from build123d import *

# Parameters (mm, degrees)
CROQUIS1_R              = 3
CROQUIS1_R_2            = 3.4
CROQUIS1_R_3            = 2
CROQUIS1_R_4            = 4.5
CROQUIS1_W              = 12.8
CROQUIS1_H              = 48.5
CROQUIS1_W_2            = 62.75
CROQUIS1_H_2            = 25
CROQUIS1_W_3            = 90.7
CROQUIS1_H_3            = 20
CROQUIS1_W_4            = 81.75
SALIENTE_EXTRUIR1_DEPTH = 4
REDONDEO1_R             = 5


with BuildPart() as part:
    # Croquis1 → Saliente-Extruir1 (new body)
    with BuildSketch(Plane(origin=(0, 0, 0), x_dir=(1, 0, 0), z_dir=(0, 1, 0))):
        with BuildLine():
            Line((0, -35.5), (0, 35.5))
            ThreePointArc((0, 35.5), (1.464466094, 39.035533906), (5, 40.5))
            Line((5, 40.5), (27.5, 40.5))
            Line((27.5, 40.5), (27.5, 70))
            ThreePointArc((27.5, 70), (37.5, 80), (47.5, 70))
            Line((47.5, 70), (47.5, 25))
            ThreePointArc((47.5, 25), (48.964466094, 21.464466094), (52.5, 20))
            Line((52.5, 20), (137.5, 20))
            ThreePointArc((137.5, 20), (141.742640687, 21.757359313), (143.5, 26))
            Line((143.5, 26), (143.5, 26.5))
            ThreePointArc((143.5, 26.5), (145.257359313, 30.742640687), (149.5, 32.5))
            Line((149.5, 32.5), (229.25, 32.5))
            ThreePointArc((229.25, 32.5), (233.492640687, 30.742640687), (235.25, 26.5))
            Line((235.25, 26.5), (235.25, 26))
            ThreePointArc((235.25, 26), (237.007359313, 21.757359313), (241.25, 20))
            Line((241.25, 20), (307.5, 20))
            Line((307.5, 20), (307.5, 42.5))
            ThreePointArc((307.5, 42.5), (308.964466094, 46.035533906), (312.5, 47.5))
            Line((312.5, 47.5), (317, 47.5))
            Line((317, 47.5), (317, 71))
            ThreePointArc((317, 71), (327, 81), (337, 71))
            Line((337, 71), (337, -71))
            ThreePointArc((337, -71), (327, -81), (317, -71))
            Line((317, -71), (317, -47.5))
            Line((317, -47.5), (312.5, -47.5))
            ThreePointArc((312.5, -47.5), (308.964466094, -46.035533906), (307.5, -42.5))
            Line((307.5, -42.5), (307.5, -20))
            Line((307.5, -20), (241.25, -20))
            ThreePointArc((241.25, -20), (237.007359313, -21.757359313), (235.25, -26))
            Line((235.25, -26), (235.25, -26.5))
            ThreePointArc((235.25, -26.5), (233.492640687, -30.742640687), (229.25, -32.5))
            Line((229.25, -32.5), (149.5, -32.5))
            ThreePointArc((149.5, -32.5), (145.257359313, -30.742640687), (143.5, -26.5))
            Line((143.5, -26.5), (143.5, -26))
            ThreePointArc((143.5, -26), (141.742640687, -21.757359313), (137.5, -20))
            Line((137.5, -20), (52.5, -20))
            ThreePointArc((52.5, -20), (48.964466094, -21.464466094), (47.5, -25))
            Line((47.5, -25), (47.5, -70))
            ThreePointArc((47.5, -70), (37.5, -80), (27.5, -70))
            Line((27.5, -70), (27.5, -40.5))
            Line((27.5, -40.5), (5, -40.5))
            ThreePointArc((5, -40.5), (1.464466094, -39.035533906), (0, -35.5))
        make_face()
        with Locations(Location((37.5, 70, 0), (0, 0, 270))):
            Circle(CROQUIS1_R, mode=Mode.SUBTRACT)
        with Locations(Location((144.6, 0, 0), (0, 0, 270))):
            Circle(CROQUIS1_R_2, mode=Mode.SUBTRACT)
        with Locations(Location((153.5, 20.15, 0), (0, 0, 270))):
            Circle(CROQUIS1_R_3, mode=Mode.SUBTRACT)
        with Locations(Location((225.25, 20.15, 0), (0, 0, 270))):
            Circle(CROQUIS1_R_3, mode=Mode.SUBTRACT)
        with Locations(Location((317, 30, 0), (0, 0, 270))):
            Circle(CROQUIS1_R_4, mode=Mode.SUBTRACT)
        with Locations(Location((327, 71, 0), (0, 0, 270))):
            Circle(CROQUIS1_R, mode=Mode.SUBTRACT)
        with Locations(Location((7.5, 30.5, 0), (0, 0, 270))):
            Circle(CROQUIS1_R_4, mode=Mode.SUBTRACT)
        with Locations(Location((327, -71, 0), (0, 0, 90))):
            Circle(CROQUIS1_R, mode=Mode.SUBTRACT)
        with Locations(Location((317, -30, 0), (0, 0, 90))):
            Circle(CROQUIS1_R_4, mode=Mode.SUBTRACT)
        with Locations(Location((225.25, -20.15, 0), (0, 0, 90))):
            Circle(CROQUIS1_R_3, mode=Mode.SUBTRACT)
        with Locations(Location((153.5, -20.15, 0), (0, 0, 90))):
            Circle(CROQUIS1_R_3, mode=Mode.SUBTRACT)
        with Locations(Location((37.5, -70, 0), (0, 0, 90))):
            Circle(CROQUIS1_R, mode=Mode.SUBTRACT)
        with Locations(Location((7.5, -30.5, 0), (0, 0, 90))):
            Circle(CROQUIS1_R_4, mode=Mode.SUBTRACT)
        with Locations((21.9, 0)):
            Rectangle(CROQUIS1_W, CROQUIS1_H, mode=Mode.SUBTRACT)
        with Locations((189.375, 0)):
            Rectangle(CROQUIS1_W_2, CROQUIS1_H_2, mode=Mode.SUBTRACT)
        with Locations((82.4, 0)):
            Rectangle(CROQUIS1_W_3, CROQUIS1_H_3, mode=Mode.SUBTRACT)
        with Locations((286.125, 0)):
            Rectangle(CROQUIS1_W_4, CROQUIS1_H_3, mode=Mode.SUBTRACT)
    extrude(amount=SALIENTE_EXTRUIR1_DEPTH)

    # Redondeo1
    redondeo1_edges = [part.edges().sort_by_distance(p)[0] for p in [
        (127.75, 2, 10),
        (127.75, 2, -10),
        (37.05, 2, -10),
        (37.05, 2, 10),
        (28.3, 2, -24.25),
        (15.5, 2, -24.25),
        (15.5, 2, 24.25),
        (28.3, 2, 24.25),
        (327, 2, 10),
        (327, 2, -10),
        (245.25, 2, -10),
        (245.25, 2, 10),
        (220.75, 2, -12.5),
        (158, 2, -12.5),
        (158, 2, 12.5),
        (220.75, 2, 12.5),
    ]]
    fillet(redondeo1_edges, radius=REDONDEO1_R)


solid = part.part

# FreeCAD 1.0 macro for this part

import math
import FreeCAD as App
import Part
import Sketcher
from FreeCAD import Vector


def edges_at(feature, points):
    """Names of the edges that pass closest to the given points."""
    edges = feature.Shape.Edges
    near = lambda p: min(range(len(edges)), key=lambda i: edges[i].distToShape(Part.Vertex(*p))[0])
    return sorted({f"Edge{near(p) + 1}" for p in points})


def add_polygon(sketch, points):
    """Adds a closed chain of lines whose ends are joined by coincident constraints."""
    first, n = sketch.GeometryCount, len(points)
    for a, b in zip(points, points[1:] + points[:1]):
        sketch.addGeometry(Part.LineSegment(App.Vector(*a, 0), App.Vector(*b, 0)), False)
    for i in range(n):
        sketch.addConstraint(Sketcher.Constraint("Coincident", first + i, 2, first + (i + 1) % n, 1))

doc = App.newDocument("Part")
body = doc.addObject("PartDesign::Body", "Body")

# Sketch on XZ plane
sketch1 = doc.addObject("Sketcher::SketchObject", "Sketch")
body.addObject(sketch1)
sketch1.AttachmentSupport = (doc.XZ_Plane, [""])
sketch1.MapMode = "FlatFace"
sketch1.addGeometry(Part.LineSegment(Vector(0, -35.5, 0), Vector(0, 35.5, 0)), False)  # 0
sketch1.addGeometry(Part.ArcOfCircle(Part.Circle(Vector(5, 35.5, 0), Vector(0, 0, 1), 5), math.radians(90), math.radians(180)), False)  # 1
sketch1.addGeometry(Part.LineSegment(Vector(5, 40.5, 0), Vector(27.5, 40.5, 0)), False)  # 2
sketch1.addGeometry(Part.LineSegment(Vector(27.5, 40.5, 0), Vector(27.5, 70, 0)), False)  # 3
sketch1.addGeometry(Part.ArcOfCircle(Part.Circle(Vector(37.5, 70, 0), Vector(0, 0, 1), 10), math.radians(0), math.radians(180)), False)  # 4
sketch1.addGeometry(Part.LineSegment(Vector(47.5, 70, 0), Vector(47.5, 25, 0)), False)  # 5
sketch1.addGeometry(Part.ArcOfCircle(Part.Circle(Vector(52.5, 25, 0), Vector(0, 0, 1), 5), math.radians(180), math.radians(270)), False)  # 6
sketch1.addGeometry(Part.LineSegment(Vector(52.5, 20, 0), Vector(137.5, 20, 0)), False)  # 7
sketch1.addGeometry(Part.ArcOfCircle(Part.Circle(Vector(137.5, 26, 0), Vector(0, 0, 1), 6), math.radians(-90), math.radians(0)), False)  # 8
sketch1.addGeometry(Part.LineSegment(Vector(143.5, 26, 0), Vector(143.5, 26.5, 0)), False)  # 9
sketch1.addGeometry(Part.ArcOfCircle(Part.Circle(Vector(149.5, 26.5, 0), Vector(0, 0, 1), 6), math.radians(90), math.radians(180)), False)  # 10
sketch1.addGeometry(Part.LineSegment(Vector(149.5, 32.5, 0), Vector(229.2, 32.5, 0)), False)  # 11
sketch1.addGeometry(Part.ArcOfCircle(Part.Circle(Vector(229.2, 26.5, 0), Vector(0, 0, 1), 6), math.radians(0), math.radians(90)), False)  # 12
sketch1.addGeometry(Part.LineSegment(Vector(235.2, 26.5, 0), Vector(235.2, 26, 0)), False)  # 13
sketch1.addGeometry(Part.ArcOfCircle(Part.Circle(Vector(241.2, 26, 0), Vector(0, 0, 1), 6), math.radians(180), math.radians(270)), False)  # 14
sketch1.addGeometry(Part.LineSegment(Vector(241.2, 20, 0), Vector(307.5, 20, 0)), False)  # 15
sketch1.addGeometry(Part.LineSegment(Vector(307.5, 20, 0), Vector(307.5, 42.5, 0)), False)  # 16
sketch1.addGeometry(Part.ArcOfCircle(Part.Circle(Vector(312.5, 42.5, 0), Vector(0, 0, 1), 5), math.radians(90), math.radians(180)), False)  # 17
sketch1.addGeometry(Part.LineSegment(Vector(312.5, 47.5, 0), Vector(317, 47.5, 0)), False)  # 18
sketch1.addGeometry(Part.LineSegment(Vector(317, 47.5, 0), Vector(317, 71, 0)), False)  # 19
sketch1.addGeometry(Part.ArcOfCircle(Part.Circle(Vector(327, 71, 0), Vector(0, 0, 1), 10), math.radians(0), math.radians(180)), False)  # 20
sketch1.addGeometry(Part.LineSegment(Vector(337, 71, 0), Vector(337, -71, 0)), False)  # 21
sketch1.addGeometry(Part.ArcOfCircle(Part.Circle(Vector(327, -71, 0), Vector(0, 0, 1), 10), math.radians(180), math.radians(360)), False)  # 22
sketch1.addGeometry(Part.LineSegment(Vector(317, -71, 0), Vector(317, -47.5, 0)), False)  # 23
sketch1.addGeometry(Part.LineSegment(Vector(317, -47.5, 0), Vector(312.5, -47.5, 0)), False)  # 24
sketch1.addGeometry(Part.ArcOfCircle(Part.Circle(Vector(312.5, -42.5, 0), Vector(0, 0, 1), 5), math.radians(180), math.radians(270)), False)  # 25
sketch1.addGeometry(Part.LineSegment(Vector(307.5, -42.5, 0), Vector(307.5, -20, 0)), False)  # 26
sketch1.addGeometry(Part.LineSegment(Vector(307.5, -20, 0), Vector(241.2, -20, 0)), False)  # 27
sketch1.addGeometry(Part.ArcOfCircle(Part.Circle(Vector(241.2, -26, 0), Vector(0, 0, 1), 6), math.radians(90), math.radians(180)), False)  # 28
sketch1.addGeometry(Part.LineSegment(Vector(235.2, -26, 0), Vector(235.2, -26.5, 0)), False)  # 29
sketch1.addGeometry(Part.ArcOfCircle(Part.Circle(Vector(229.2, -26.5, 0), Vector(0, 0, 1), 6), math.radians(-90), math.radians(0)), False)  # 30
sketch1.addGeometry(Part.LineSegment(Vector(229.2, -32.5, 0), Vector(149.5, -32.5, 0)), False)  # 31
sketch1.addGeometry(Part.ArcOfCircle(Part.Circle(Vector(149.5, -26.5, 0), Vector(0, 0, 1), 6), math.radians(180), math.radians(270)), False)  # 32
sketch1.addGeometry(Part.LineSegment(Vector(143.5, -26.5, 0), Vector(143.5, -26, 0)), False)  # 33
sketch1.addGeometry(Part.ArcOfCircle(Part.Circle(Vector(137.5, -26, 0), Vector(0, 0, 1), 6), math.radians(0), math.radians(90)), False)  # 34
sketch1.addGeometry(Part.LineSegment(Vector(137.5, -20, 0), Vector(52.5, -20, 0)), False)  # 35
sketch1.addGeometry(Part.ArcOfCircle(Part.Circle(Vector(52.5, -25, 0), Vector(0, 0, 1), 5), math.radians(90), math.radians(180)), False)  # 36
sketch1.addGeometry(Part.LineSegment(Vector(47.5, -25, 0), Vector(47.5, -70, 0)), False)  # 37
sketch1.addGeometry(Part.ArcOfCircle(Part.Circle(Vector(37.5, -70, 0), Vector(0, 0, 1), 10), math.radians(180), math.radians(360)), False)  # 38
sketch1.addGeometry(Part.LineSegment(Vector(27.5, -70, 0), Vector(27.5, -40.5, 0)), False)  # 39
sketch1.addGeometry(Part.LineSegment(Vector(27.5, -40.5, 0), Vector(5, -40.5, 0)), False)  # 40
sketch1.addGeometry(Part.ArcOfCircle(Part.Circle(Vector(5, -35.5, 0), Vector(0, 0, 1), 5), math.radians(180), math.radians(270)), False)  # 41
sketch1.addGeometry(Part.Circle(Vector(327, 71, 0), Vector(0, 0, 1), 3), False)  # 42
sketch1.addGeometry(Part.Circle(Vector(317, 30, 0), Vector(0, 0, 1), 4.5), False)  # 43
sketch1.addGeometry(Part.Circle(Vector(225.2, 20.1, 0), Vector(0, 0, 1), 2), False)  # 44
sketch1.addGeometry(Part.Circle(Vector(37.5, 70, 0), Vector(0, 0, 1), 3), False)  # 45
sketch1.addGeometry(Part.Circle(Vector(153.5, 20.1, 0), Vector(0, 0, 1), 2), False)  # 46
sketch1.addGeometry(Part.Circle(Vector(7.5, 30.5, 0), Vector(0, 0, 1), 4.5), False)  # 47
add_polygon(sketch1, [(245.2, 10), (245.2, -10), (327, -10), (327, 10)])  # lines 48-51
sketch1.addGeometry(Part.Circle(Vector(317, -30, 0), Vector(0, 0, 1), 4.5), False)  # 52
add_polygon(sketch1, [(158, 12.5), (158, -12.5), (220.8, -12.5), (220.8, 12.5)])  # lines 53-56
sketch1.addGeometry(Part.Circle(Vector(225.2, -20.1, 0), Vector(0, 0, 1), 2), False)  # 57
sketch1.addGeometry(Part.Circle(Vector(327, -71, 0), Vector(0, 0, 1), 3), False)  # 58
sketch1.addGeometry(Part.Circle(Vector(144.6, 0, 0), Vector(0, 0, 1), 3.4), False)  # 59
sketch1.addGeometry(Part.Circle(Vector(153.5, -20.1, 0), Vector(0, 0, 1), 2), False)  # 60
add_polygon(sketch1, [(37, 10), (37, -10), (127.8, -10), (127.8, 10)])  # lines 61-64
add_polygon(sketch1, [(15.5, 24.2), (15.5, -24.2), (28.3, -24.2), (28.3, 24.2)])  # lines 65-68
sketch1.addGeometry(Part.Circle(Vector(7.5, -30.5, 0), Vector(0, 0, 1), 4.5), False)  # 69
sketch1.addGeometry(Part.Circle(Vector(37.5, -70, 0), Vector(0, 0, 1), 3), False)  # 70
sketch1.addConstraint(Sketcher.Constraint("Tangent", 0, 2, 1, 2))
sketch1.addConstraint(Sketcher.Constraint("Tangent", 1, 1, 2, 1))
sketch1.addConstraint(Sketcher.Constraint("Coincident", 2, 2, 3, 1))
sketch1.addConstraint(Sketcher.Constraint("Tangent", 3, 2, 4, 2))
sketch1.addConstraint(Sketcher.Constraint("Tangent", 4, 1, 5, 1))
sketch1.addConstraint(Sketcher.Constraint("Tangent", 5, 2, 6, 1))
sketch1.addConstraint(Sketcher.Constraint("Tangent", 6, 2, 7, 1))
sketch1.addConstraint(Sketcher.Constraint("Tangent", 7, 2, 8, 1))
sketch1.addConstraint(Sketcher.Constraint("Tangent", 8, 2, 9, 1))
sketch1.addConstraint(Sketcher.Constraint("Tangent", 9, 2, 10, 2))
sketch1.addConstraint(Sketcher.Constraint("Tangent", 10, 1, 11, 1))
sketch1.addConstraint(Sketcher.Constraint("Tangent", 11, 2, 12, 2))
sketch1.addConstraint(Sketcher.Constraint("Tangent", 12, 1, 13, 1))
sketch1.addConstraint(Sketcher.Constraint("Tangent", 13, 2, 14, 1))
sketch1.addConstraint(Sketcher.Constraint("Tangent", 14, 2, 15, 1))
sketch1.addConstraint(Sketcher.Constraint("Coincident", 15, 2, 16, 1))
sketch1.addConstraint(Sketcher.Constraint("Tangent", 16, 2, 17, 2))
sketch1.addConstraint(Sketcher.Constraint("Tangent", 17, 1, 18, 1))
sketch1.addConstraint(Sketcher.Constraint("Coincident", 18, 2, 19, 1))
sketch1.addConstraint(Sketcher.Constraint("Tangent", 19, 2, 20, 2))
sketch1.addConstraint(Sketcher.Constraint("Tangent", 20, 1, 21, 1))
sketch1.addConstraint(Sketcher.Constraint("Tangent", 21, 2, 22, 2))
sketch1.addConstraint(Sketcher.Constraint("Tangent", 22, 1, 23, 1))
sketch1.addConstraint(Sketcher.Constraint("Coincident", 23, 2, 24, 1))
sketch1.addConstraint(Sketcher.Constraint("Tangent", 24, 2, 25, 2))
sketch1.addConstraint(Sketcher.Constraint("Tangent", 25, 1, 26, 1))
sketch1.addConstraint(Sketcher.Constraint("Coincident", 26, 2, 27, 1))
sketch1.addConstraint(Sketcher.Constraint("Tangent", 27, 2, 28, 1))
sketch1.addConstraint(Sketcher.Constraint("Tangent", 28, 2, 29, 1))
sketch1.addConstraint(Sketcher.Constraint("Tangent", 29, 2, 30, 2))
sketch1.addConstraint(Sketcher.Constraint("Tangent", 30, 1, 31, 1))
sketch1.addConstraint(Sketcher.Constraint("Tangent", 31, 2, 32, 2))
sketch1.addConstraint(Sketcher.Constraint("Tangent", 32, 1, 33, 1))
sketch1.addConstraint(Sketcher.Constraint("Tangent", 33, 2, 34, 1))
sketch1.addConstraint(Sketcher.Constraint("Tangent", 34, 2, 35, 1))
sketch1.addConstraint(Sketcher.Constraint("Tangent", 35, 2, 36, 1))
sketch1.addConstraint(Sketcher.Constraint("Tangent", 36, 2, 37, 1))
sketch1.addConstraint(Sketcher.Constraint("Tangent", 37, 2, 38, 2))
sketch1.addConstraint(Sketcher.Constraint("Tangent", 38, 1, 39, 1))
sketch1.addConstraint(Sketcher.Constraint("Coincident", 39, 2, 40, 1))
sketch1.addConstraint(Sketcher.Constraint("Tangent", 40, 2, 41, 2))
sketch1.addConstraint(Sketcher.Constraint("Tangent", 41, 1, 0, 1))
sketch1.addConstraint(Sketcher.Constraint("Vertical", 0))
sketch1.addConstraint(Sketcher.Constraint("Horizontal", 2))
sketch1.addConstraint(Sketcher.Constraint("Vertical", 3))
sketch1.addConstraint(Sketcher.Constraint("Vertical", 5))
sketch1.addConstraint(Sketcher.Constraint("Horizontal", 7))
sketch1.addConstraint(Sketcher.Constraint("Vertical", 9))
sketch1.addConstraint(Sketcher.Constraint("Horizontal", 11))
sketch1.addConstraint(Sketcher.Constraint("Vertical", 13))
sketch1.addConstraint(Sketcher.Constraint("Horizontal", 15))
sketch1.addConstraint(Sketcher.Constraint("Vertical", 16))
sketch1.addConstraint(Sketcher.Constraint("Horizontal", 18))
sketch1.addConstraint(Sketcher.Constraint("Vertical", 19))
sketch1.addConstraint(Sketcher.Constraint("Vertical", 21))
sketch1.addConstraint(Sketcher.Constraint("Vertical", 23))
sketch1.addConstraint(Sketcher.Constraint("Horizontal", 24))
sketch1.addConstraint(Sketcher.Constraint("Vertical", 26))
sketch1.addConstraint(Sketcher.Constraint("Horizontal", 27))
sketch1.addConstraint(Sketcher.Constraint("Vertical", 29))
sketch1.addConstraint(Sketcher.Constraint("Horizontal", 31))
sketch1.addConstraint(Sketcher.Constraint("Vertical", 33))
sketch1.addConstraint(Sketcher.Constraint("Horizontal", 35))
sketch1.addConstraint(Sketcher.Constraint("Vertical", 37))
sketch1.addConstraint(Sketcher.Constraint("Vertical", 39))
sketch1.addConstraint(Sketcher.Constraint("Horizontal", 40))
sketch1.addConstraint(Sketcher.Constraint("Vertical", 48))
sketch1.addConstraint(Sketcher.Constraint("Horizontal", 49))
sketch1.addConstraint(Sketcher.Constraint("Vertical", 50))
sketch1.addConstraint(Sketcher.Constraint("Horizontal", 51))
sketch1.addConstraint(Sketcher.Constraint("Vertical", 53))
sketch1.addConstraint(Sketcher.Constraint("Horizontal", 54))
sketch1.addConstraint(Sketcher.Constraint("Vertical", 55))
sketch1.addConstraint(Sketcher.Constraint("Horizontal", 56))
sketch1.addConstraint(Sketcher.Constraint("Vertical", 61))
sketch1.addConstraint(Sketcher.Constraint("Horizontal", 62))
sketch1.addConstraint(Sketcher.Constraint("Vertical", 63))
sketch1.addConstraint(Sketcher.Constraint("Horizontal", 64))
sketch1.addConstraint(Sketcher.Constraint("Vertical", 65))
sketch1.addConstraint(Sketcher.Constraint("Horizontal", 66))
sketch1.addConstraint(Sketcher.Constraint("Vertical", 67))
sketch1.addConstraint(Sketcher.Constraint("Horizontal", 68))
sketch1.addConstraint(Sketcher.Constraint("Coincident", 42, 3, 20, 3))
sketch1.addConstraint(Sketcher.Constraint("Coincident", 45, 3, 4, 3))
sketch1.addConstraint(Sketcher.Constraint("Coincident", 58, 3, 22, 3))
sketch1.addConstraint(Sketcher.Constraint("Coincident", 70, 3, 38, 3))
sketch1.addConstraint(Sketcher.Constraint("Equal", 1, 6))
sketch1.addConstraint(Sketcher.Constraint("Equal", 8, 10))
sketch1.addConstraint(Sketcher.Constraint("Equal", 10, 12))
sketch1.addConstraint(Sketcher.Constraint("Equal", 12, 14))
sketch1.addConstraint(Sketcher.Constraint("Equal", 6, 17))
sketch1.addConstraint(Sketcher.Constraint("Equal", 4, 20))
sketch1.addConstraint(Sketcher.Constraint("Equal", 20, 22))
sketch1.addConstraint(Sketcher.Constraint("Equal", 17, 25))
sketch1.addConstraint(Sketcher.Constraint("Equal", 14, 28))
sketch1.addConstraint(Sketcher.Constraint("Equal", 28, 30))
sketch1.addConstraint(Sketcher.Constraint("Equal", 30, 32))
sketch1.addConstraint(Sketcher.Constraint("Equal", 32, 34))
sketch1.addConstraint(Sketcher.Constraint("Equal", 25, 36))
sketch1.addConstraint(Sketcher.Constraint("Equal", 22, 38))
sketch1.addConstraint(Sketcher.Constraint("Equal", 36, 41))
sketch1.addConstraint(Sketcher.Constraint("Equal", 42, 45))
sketch1.addConstraint(Sketcher.Constraint("Equal", 44, 46))
sketch1.addConstraint(Sketcher.Constraint("Equal", 43, 47))
sketch1.addConstraint(Sketcher.Constraint("Equal", 47, 52))
sketch1.addConstraint(Sketcher.Constraint("Equal", 46, 57))
sketch1.addConstraint(Sketcher.Constraint("Equal", 45, 58))
sketch1.addConstraint(Sketcher.Constraint("Equal", 57, 60))
sketch1.addConstraint(Sketcher.Constraint("Equal", 52, 69))
sketch1.addConstraint(Sketcher.Constraint("Equal", 58, 70))
sketch1.addConstraint(Sketcher.Constraint("Symmetric", 0, 2, 41, 1, -1, 1))
sketch1.addConstraint(Sketcher.Constraint("Symmetric", 17, 3, 25, 3, -1))
sketch1.addConstraint(Sketcher.Constraint("Symmetric", 14, 3, 28, 3, -1))
sketch1.addConstraint(Sketcher.Constraint("Symmetric", 10, 3, 32, 3, -1))
sketch1.addConstraint(Sketcher.Constraint("Symmetric", 6, 3, 36, 3, -1))
sketch1.addConstraint(Sketcher.Constraint("Symmetric", 43, 3, 52, 3, -1))
sketch1.addConstraint(Sketcher.Constraint("Symmetric", 44, 3, 57, 3, -1))
sketch1.addConstraint(Sketcher.Constraint("Symmetric", 46, 3, 60, 3, -1))
sketch1.addConstraint(Sketcher.Constraint("Symmetric", 47, 3, 69, 3, -1))
sketch1.addConstraint(Sketcher.Constraint("PointOnObject", 59, 3, -1))
sketch1.addConstraint(Sketcher.Constraint("Horizontal", 8, 3, 14, 3))
sketch1.addConstraint(Sketcher.Constraint("Horizontal", 44, 3, 46, 3))
sketch1.addConstraint(Sketcher.Constraint("Horizontal", 49, 2, 61, 2))
sketch1.addConstraint(Sketcher.Constraint("Horizontal", 51, 2, 63, 2))
sketch1.addConstraint(Sketcher.Constraint("Vertical", 52, 3, 18, 2))
sketch1.addConstraint(Sketcher.Constraint("Vertical", 58, 3, 49, 2))
sketch1.addConstraint(Sketcher.Constraint("Equal", 40, 16))
sketch1.addConstraint(Sketcher.Constraint("Equal", 19, 23))
sketch1.addConstraint(Sketcher.Constraint("Equal", 5, 37))
sketch1.addConstraint(Sketcher.Constraint("Diameter", 42, 6.0))
sketch1.addConstraint(Sketcher.Constraint("Diameter", 43, 9.0))
sketch1.addConstraint(Sketcher.Constraint("Diameter", 44, 4.0))
sketch1.addConstraint(Sketcher.Constraint("Radius", 1, 5.0))
sketch1.addConstraint(Sketcher.Constraint("Radius", 4, 10.0))
sketch1.addConstraint(Sketcher.Constraint("Radius", 8, 6.0))
sketch1.addConstraint(Sketcher.Constraint("Diameter", 59, 6.8))
sketch1.addConstraint(Sketcher.Constraint("DistanceX", 7, 1, 7, 2, 85.0))
sketch1.addConstraint(Sketcher.Constraint("DistanceY", 0, 1, 0, 2, 71.0))
sketch1.addConstraint(Sketcher.Constraint("DistanceY", 5, 2, 5, 1, 45.0))
sketch1.addConstraint(Sketcher.Constraint("DistanceY", 21, 2, 21, 1, 142.0))
sketch1.addConstraint(Sketcher.Constraint("DistanceY", 48, 2, 48, 1, 20.0))
sketch1.addConstraint(Sketcher.Constraint("DistanceY", 53, 2, 53, 1, 25.0))
sketch1.addConstraint(Sketcher.Constraint("DistanceX", 2, 1, 2, 2, 22.5))
sketch1.addConstraint(Sketcher.Constraint("DistanceX", 18, 1, 18, 2, 4.5))
sketch1.addConstraint(Sketcher.Constraint("DistanceX", 62, 1, 62, 2, 90.7))
sketch1.addConstraint(Sketcher.Constraint("DistanceX", 66, 1, 66, 2, 12.8))
sketch1.addConstraint(Sketcher.Constraint("DistanceY", 3, 1, 3, 2, 29.5))
sketch1.addConstraint(Sketcher.Constraint("DistanceY", 9, 1, 9, 2, 0.5))
sketch1.addConstraint(Sketcher.Constraint("DistanceY", 65, 2, 65, 1, 48.5))
sketch1.addConstraint(Sketcher.Constraint("DistanceX", -1, 1, 20, 3, 327.0))
sketch1.addConstraint(Sketcher.Constraint("DistanceY", -1, 1, 43, 3, 30.0))
sketch1.addConstraint(Sketcher.Constraint("DistanceY", 48, 2, -1, 1, 10.0))
sketch1.addConstraint(Sketcher.Constraint("DistanceX", -1, 1, 53, 2, 158.0))
sketch1.addConstraint(Sketcher.Constraint("DistanceX", 11, 1, 11, 2, 79.75))
sketch1.addConstraint(Sketcher.Constraint("DistanceX", 49, 1, 49, 2, 81.75))
sketch1.addConstraint(Sketcher.Constraint("DistanceX", 54, 1, 54, 2, 62.75))
sketch1.addConstraint(Sketcher.Constraint("DistanceX", -1, 1, 46, 3, 153.5))
sketch1.addConstraint(Sketcher.Constraint("DistanceX", -1, 1, 47, 3, 7.5))
sketch1.addConstraint(Sketcher.Constraint("DistanceY", -1, 1, 47, 3, 30.5))
sketch1.addConstraint(Sketcher.Constraint("DistanceX", -1, 1, 59, 3, 144.6))
sketch1.addConstraint(Sketcher.Constraint("DistanceY", 53, 2, -1, 1, 12.5))
sketch1.addConstraint(Sketcher.Constraint("DistanceX", -1, 1, 65, 2, 15.5))
sketch1.addConstraint(Sketcher.Constraint("DistanceX", -1, 1, 44, 3, 225.25))
sketch1.addConstraint(Sketcher.Constraint("DistanceY", -1, 1, 44, 3, 20.15))
sketch1.addConstraint(Sketcher.Constraint("DistanceX", -1, 1, 61, 2, 37.05))
sketch1.addConstraint(Sketcher.Constraint("DistanceY", 65, 2, -1, 1, 24.25))
pad1 = doc.addObject("PartDesign::Pad", "Pad")
body.addObject(pad1)
pad1.Profile = sketch1
pad1.Length = 4
pad1.Reversed = True
doc.recompute()

fillet = doc.addObject("PartDesign::Fillet", "Fillet")
body.addObject(fillet)
fillet.Base = (pad1, edges_at(pad1, [
    (127.75, 2, 10),
    (127.75, 2, -10),
    (37.05, 2, -10),
    (37.05, 2, 10),
    (28.3, 2, -24.25),
    (15.5, 2, -24.25),
    (15.5, 2, 24.25),
    (28.3, 2, 24.25),
    (327, 2, 10),
    (327, 2, -10),
    (245.25, 2, -10),
    (245.25, 2, 10),
    (220.75, 2, -12.5),
    (158, 2, -12.5),
    (158, 2, 12.5),
    (220.75, 2, 12.5),
]))
fillet.Radius = 5

doc.recompute()
